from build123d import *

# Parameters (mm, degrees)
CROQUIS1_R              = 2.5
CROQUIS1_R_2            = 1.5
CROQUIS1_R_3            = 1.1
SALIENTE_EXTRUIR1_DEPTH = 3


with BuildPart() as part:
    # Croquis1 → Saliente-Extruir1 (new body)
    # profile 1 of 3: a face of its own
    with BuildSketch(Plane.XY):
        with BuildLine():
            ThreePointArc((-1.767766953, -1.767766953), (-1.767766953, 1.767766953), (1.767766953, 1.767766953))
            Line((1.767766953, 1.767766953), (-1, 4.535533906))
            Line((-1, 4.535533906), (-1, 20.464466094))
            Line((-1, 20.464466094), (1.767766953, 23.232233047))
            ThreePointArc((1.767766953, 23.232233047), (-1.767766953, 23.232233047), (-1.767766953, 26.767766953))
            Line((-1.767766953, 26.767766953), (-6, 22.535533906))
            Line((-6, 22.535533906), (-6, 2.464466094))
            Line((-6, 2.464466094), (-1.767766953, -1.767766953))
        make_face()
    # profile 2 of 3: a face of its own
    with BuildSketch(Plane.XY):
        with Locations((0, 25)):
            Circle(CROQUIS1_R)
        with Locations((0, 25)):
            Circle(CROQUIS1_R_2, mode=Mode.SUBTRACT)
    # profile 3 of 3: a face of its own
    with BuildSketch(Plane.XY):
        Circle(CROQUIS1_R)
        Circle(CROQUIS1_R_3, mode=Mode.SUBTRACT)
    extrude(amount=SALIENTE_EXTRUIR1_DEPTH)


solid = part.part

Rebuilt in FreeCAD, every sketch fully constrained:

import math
import FreeCAD as App
import Part
import Sketcher

V = App.Vector
Q = App.Units.Quantity

doc = App.newDocument("Part")
body = doc.addObject("PartDesign::Body", "Body")

# Sketch on XY plane
sketch1 = body.newObject("Sketcher::SketchObject", "Sketch")
sketch1.AttachmentSupport = (doc.getObject("XY_Plane"), [""])
sketch1.MapMode = "FlatFace"
sketch1.addGeometry(Part.LineSegment(V(1.8, 1.8, 0), V(-1, 4.5, 0)), False)
sketch1.addGeometry(Part.LineSegment(V(-1, 4.5, 0), V(-1, 20.5, 0)), False)
sketch1.addGeometry(Part.LineSegment(V(-1, 20.5, 0), V(1.8, 23.2, 0)), False)
sketch1.addGeometry(Part.ArcOfCircle(Part.Circle(V(0, 25, 0), V(0, 0, 1), 2.5), math.radians(-45), math.radians(135)), False)
sketch1.addGeometry(Part.LineSegment(V(-1.8, 26.8, 0), V(-6, 22.5, 0)), False)
sketch1.addGeometry(Part.LineSegment(V(-6, 22.5, 0), V(-6, 2.5, 0)), False)
sketch1.addGeometry(Part.LineSegment(V(-6, 2.5, 0), V(-1.8, -1.8, 0)), False)
sketch1.addGeometry(Part.ArcOfCircle(Part.Circle(V(0, 0, 0), V(0, 0, 1), 2.5), math.radians(-135), math.radians(45)), False)
sketch1.addGeometry(Part.Circle(V(0, 0, 0), V(0, 0, 1), 1.1), False)
sketch1.addGeometry(Part.Circle(V(0, 25, 0), V(0, 0, 1), 1.5), False)
sketch1.addConstraint(Sketcher.Constraint("Coincident", 0, 2, 1, 1))
sketch1.addConstraint(Sketcher.Constraint("Coincident", 1, 2, 2, 1))
sketch1.addConstraint(Sketcher.Constraint("Tangent", 2, 2, 3, 1))
sketch1.addConstraint(Sketcher.Constraint("Tangent", 3, 2, 4, 1))
sketch1.addConstraint(Sketcher.Constraint("Coincident", 4, 2, 5, 1))
sketch1.addConstraint(Sketcher.Constraint("Coincident", 5, 2, 6, 1))
sketch1.addConstraint(Sketcher.Constraint("Tangent", 6, 2, 7, 1))
sketch1.addConstraint(Sketcher.Constraint("Tangent", 7, 2, 0, 1))
sketch1.addConstraint(Sketcher.Constraint("Vertical", 1))
sketch1.addConstraint(Sketcher.Constraint("Vertical", 5))
sketch1.addConstraint(Sketcher.Constraint("Coincident", 7, 3, -1, 1))
sketch1.addConstraint(Sketcher.Constraint("Coincident", 8, 3, -1, 1))
sketch1.addConstraint(Sketcher.Constraint("Coincident", 9, 3, 3, 3))
sketch1.addConstraint(Sketcher.Constraint("Equal", 3, 7))
sketch1.addConstraint(Sketcher.Constraint("PointOnObject", 3, 3, -2))
sketch1.addConstraint(Sketcher.Constraint("Perpendicular", 0, 2))
sketch1.addConstraint(Sketcher.Constraint("Parallel", 2, 4))
sketch1.addConstraint(Sketcher.Constraint("Perpendicular", 4, 6))
sketch1.addConstraint(Sketcher.Constraint("Vertical", 3, 2, 6, 2))
sketch1.addConstraint(Sketcher.Constraint("Diameter", 9, Q("3 mm")))
sketch1.addConstraint(Sketcher.Constraint("Diameter", 8, Q("2.2 mm")))
sketch1.addConstraint(Sketcher.Constraint("Radius", 3, Q("2.5 mm")))
sketch1.addConstraint(Sketcher.Constraint("DistanceY", -1, 1, 3, 3, Q("25 mm")))
sketch1.addConstraint(Sketcher.Constraint("DistanceX", 0, 2, -1, 1, Q("1 mm")))
sketch1.addConstraint(Sketcher.Constraint("DistanceX", 4, 2, -1, 1, Q("6 mm")))
pad1 = body.newObject("PartDesign::Pad", "Pad")
pad1.Profile = sketch1
pad1.Length = 3

doc.recompute()
